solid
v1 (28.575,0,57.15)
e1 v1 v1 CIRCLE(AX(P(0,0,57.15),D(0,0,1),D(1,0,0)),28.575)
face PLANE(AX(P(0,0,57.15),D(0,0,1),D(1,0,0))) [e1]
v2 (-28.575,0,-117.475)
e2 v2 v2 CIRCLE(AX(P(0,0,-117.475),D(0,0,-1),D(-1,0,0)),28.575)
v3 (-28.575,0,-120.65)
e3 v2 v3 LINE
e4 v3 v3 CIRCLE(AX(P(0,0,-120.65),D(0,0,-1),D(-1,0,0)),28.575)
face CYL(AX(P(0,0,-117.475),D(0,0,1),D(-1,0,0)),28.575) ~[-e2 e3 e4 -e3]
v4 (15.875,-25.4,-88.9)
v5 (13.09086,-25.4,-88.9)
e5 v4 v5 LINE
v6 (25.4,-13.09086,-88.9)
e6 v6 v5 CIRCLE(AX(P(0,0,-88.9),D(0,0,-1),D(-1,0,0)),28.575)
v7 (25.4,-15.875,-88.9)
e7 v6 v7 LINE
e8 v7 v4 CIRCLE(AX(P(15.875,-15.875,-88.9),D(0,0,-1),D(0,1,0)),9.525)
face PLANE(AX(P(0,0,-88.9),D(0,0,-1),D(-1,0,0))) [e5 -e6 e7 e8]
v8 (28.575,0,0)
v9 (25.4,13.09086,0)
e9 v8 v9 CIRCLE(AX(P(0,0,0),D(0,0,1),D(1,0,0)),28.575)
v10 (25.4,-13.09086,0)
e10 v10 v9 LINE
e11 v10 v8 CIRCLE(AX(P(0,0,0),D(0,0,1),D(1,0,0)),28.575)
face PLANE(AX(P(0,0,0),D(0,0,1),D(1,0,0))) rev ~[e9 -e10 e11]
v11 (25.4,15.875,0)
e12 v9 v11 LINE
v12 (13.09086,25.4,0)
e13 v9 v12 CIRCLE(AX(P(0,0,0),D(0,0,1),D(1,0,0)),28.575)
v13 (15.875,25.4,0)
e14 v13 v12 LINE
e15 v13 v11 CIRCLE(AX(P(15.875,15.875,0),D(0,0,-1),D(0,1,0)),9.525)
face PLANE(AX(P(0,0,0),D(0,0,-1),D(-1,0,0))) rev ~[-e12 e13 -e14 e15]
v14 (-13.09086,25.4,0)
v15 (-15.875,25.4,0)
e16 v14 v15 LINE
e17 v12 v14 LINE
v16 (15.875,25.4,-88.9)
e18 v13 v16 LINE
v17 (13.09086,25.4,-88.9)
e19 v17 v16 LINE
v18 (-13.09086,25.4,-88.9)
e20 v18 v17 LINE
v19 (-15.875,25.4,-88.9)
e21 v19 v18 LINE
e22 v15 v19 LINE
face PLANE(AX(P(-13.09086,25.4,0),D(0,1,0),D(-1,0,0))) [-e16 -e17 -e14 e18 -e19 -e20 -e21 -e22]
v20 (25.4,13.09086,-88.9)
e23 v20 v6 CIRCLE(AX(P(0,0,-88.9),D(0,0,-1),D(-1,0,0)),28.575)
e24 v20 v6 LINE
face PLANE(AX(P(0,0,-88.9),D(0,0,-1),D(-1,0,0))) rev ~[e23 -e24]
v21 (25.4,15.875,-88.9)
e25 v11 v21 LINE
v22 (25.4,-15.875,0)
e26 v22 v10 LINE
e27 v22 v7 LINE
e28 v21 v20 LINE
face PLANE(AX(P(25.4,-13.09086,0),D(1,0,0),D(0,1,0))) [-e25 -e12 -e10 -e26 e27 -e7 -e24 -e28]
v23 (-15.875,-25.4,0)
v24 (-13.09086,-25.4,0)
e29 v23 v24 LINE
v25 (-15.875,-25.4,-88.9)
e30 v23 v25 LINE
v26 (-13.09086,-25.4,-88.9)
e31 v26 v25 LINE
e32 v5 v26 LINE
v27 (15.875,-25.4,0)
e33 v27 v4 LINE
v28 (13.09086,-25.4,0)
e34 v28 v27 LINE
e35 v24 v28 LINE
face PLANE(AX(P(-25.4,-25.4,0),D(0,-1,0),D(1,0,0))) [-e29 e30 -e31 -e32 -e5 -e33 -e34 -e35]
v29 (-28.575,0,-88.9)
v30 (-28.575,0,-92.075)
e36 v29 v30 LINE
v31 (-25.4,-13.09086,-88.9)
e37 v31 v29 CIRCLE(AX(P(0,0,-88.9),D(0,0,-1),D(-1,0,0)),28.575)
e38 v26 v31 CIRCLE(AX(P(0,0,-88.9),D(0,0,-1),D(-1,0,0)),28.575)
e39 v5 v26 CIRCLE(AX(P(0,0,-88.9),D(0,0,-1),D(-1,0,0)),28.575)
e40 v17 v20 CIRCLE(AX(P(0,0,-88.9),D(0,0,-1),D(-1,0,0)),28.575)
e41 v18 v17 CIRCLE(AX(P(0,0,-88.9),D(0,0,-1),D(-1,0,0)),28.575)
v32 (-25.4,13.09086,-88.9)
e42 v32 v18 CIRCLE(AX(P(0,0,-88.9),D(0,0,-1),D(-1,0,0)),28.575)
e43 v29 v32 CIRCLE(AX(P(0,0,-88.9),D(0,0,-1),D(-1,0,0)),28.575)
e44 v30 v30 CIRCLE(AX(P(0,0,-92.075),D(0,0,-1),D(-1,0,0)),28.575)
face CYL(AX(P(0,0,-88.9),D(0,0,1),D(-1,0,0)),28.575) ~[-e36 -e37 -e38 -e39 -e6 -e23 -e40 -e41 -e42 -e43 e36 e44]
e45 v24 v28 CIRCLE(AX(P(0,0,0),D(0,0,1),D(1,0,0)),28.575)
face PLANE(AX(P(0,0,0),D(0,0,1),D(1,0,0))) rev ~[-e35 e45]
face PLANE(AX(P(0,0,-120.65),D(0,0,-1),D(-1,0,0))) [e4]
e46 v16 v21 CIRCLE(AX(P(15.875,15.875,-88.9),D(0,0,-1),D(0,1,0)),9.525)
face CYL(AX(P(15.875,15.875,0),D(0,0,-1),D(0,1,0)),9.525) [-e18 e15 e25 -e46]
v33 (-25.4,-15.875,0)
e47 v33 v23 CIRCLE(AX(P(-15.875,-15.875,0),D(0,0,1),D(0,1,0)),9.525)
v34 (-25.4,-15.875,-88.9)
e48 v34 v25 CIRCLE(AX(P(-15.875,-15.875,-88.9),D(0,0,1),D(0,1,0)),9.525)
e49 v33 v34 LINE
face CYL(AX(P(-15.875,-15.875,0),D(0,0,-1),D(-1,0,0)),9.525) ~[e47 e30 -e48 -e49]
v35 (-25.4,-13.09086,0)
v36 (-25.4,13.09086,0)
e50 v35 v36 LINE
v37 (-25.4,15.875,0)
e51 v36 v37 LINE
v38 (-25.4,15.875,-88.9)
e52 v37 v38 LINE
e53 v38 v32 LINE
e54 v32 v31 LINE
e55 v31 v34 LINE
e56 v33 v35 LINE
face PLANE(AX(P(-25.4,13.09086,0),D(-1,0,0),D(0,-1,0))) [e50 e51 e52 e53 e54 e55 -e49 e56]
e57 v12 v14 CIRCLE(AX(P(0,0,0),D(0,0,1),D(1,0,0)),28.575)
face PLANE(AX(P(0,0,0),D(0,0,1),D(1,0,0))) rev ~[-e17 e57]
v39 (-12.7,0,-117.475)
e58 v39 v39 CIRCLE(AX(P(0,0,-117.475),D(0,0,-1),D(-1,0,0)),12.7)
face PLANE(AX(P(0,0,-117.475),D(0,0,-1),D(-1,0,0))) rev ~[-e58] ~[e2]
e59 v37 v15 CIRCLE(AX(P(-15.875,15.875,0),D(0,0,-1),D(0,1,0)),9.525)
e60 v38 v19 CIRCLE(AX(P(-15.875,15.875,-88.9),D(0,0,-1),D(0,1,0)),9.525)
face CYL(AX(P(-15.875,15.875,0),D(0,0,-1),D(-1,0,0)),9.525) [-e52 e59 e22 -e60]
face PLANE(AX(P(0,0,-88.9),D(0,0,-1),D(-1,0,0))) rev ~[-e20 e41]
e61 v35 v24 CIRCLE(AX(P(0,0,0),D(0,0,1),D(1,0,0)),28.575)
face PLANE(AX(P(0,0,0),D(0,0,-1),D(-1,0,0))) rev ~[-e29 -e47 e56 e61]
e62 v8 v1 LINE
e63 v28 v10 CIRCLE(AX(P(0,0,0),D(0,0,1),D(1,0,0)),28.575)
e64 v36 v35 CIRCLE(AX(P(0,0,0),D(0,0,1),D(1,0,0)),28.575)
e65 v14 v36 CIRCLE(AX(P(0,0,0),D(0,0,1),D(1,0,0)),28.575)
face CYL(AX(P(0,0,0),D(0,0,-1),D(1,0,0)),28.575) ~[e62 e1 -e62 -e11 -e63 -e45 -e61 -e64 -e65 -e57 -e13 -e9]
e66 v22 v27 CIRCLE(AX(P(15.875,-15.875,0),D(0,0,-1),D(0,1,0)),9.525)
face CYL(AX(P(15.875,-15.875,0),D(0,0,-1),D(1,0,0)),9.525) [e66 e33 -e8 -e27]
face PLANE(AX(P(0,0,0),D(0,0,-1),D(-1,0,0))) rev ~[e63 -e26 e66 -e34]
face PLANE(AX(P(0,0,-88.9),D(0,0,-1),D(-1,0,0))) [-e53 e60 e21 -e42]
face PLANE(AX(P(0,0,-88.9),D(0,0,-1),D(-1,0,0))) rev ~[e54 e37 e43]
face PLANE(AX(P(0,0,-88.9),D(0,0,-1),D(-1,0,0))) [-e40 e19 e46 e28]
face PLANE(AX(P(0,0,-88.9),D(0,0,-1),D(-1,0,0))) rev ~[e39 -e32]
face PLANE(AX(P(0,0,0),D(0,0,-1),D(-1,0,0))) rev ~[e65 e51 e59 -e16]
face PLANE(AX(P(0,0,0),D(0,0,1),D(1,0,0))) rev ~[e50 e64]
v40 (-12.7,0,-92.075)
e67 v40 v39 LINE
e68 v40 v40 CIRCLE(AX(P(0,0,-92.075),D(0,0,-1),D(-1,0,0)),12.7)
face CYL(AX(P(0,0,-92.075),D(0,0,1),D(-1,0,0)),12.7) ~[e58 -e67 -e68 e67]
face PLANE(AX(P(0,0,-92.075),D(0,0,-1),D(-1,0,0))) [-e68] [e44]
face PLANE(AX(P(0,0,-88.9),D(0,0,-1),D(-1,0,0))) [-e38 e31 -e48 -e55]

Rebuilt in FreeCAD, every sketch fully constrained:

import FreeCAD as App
import Part
import Sketcher
from FreeCAD import Vector
Q = App.Units.Quantity


def edges_at(feature, points):
    """Names of the edges that pass closest to the given points."""
    edges = feature.Shape.Edges
    near = lambda p: min(range(len(edges)), key=lambda i: edges[i].distToShape(Part.Vertex(*p))[0])
    return sorted({f"Edge{near(p) + 1}" for p in points})


def add_polygon(sketch, points):
    """Adds a closed chain of lines whose ends are joined by coincident constraints."""
    first, n = sketch.GeometryCount, len(points)
    for a, b in zip(points, points[1:] + points[:1]):
        sketch.addGeometry(Part.LineSegment(App.Vector(*a, 0), App.Vector(*b, 0)), False)
    for i in range(n):
        sketch.addConstraint(Sketcher.Constraint("Coincident", first + i, 2, first + (i + 1) % n, 1))

doc = App.newDocument("Part")
body = doc.addObject("PartDesign::Body", "Body")

# Sketch on XY plane
sketch1 = body.newObject("Sketcher::SketchObject", "Sketch")
sketch1.AttachmentSupport = (doc.getObject("XY_Plane"), [""])
sketch1.MapMode = "FlatFace"
sketch1.addGeometry(Part.Circle(Vector(0, 0, 0), Vector(0, 0, 1), 28.575), False)
sketch1.addConstraint([
    Sketcher.Constraint("Coincident", 0, 3, -1, 1),
    Sketcher.Constraint("Diameter", 0, Q("2.25 in")),
])
pad1 = body.newObject("PartDesign::Pad", "Pad")
pad1.Profile = sketch1
pad1.Length = Q("2.25 in")

# Sketch on XY plane
sketch2 = body.newObject("Sketcher::SketchObject", "Sketch001")
sketch2.AttachmentSupport = (doc.getObject("XY_Plane"), [""])
sketch2.MapMode = "FlatFace"
add_polygon(sketch2, [(-25.4, 25.4), (25.4, 25.4), (25.4, -25.4), (-25.4, -25.4)])  # lines 0-3
sketch2.addConstraint([
    Sketcher.Constraint("Horizontal", 0),
    Sketcher.Constraint("Vertical", 1),
    Sketcher.Constraint("Horizontal", 2),
    Sketcher.Constraint("Vertical", 3),
    Sketcher.Constraint("Symmetric", 0, 2, 2, 2, -1, 1),
    Sketcher.Constraint("Equal", 2, 1),
    Sketcher.Constraint("DistanceX", -1, 1, 0, 2, Q("1 in")),
])
pad2 = body.newObject("PartDesign::Pad", "Pad001")
pad2.Profile = sketch2
pad2.Length = Q("3.5 in")
pad2.Reversed = True

# Sketch on XY plane
sketch3 = body.newObject("Sketcher::SketchObject", "Sketch002")
sketch3.AttachmentSupport = (doc.getObject("XY_Plane"), [""])
sketch3.MapMode = "FlatFace"
sketch3.AttachmentOffset = App.Placement(Vector(0, 0, -3.5 * 25.4), App.Rotation())
sketch3.addGeometry(Part.Circle(Vector(0, 0, 0), Vector(0, 0, 1), 28.575), False)
sketch3.addConstraint([
    Sketcher.Constraint("Coincident", 0, 3, -1, 1),
    Sketcher.Constraint("Diameter", 0, Q("2.25 in")),
])
pad3 = body.newObject("PartDesign::Pad", "Pad002")
pad3.Profile = sketch3
pad3.Length = Q("0.125 in")
pad3.Reversed = True

# Sketch on XY plane
sketch4 = body.newObject("Sketcher::SketchObject", "Sketch003")
sketch4.AttachmentSupport = (doc.getObject("XY_Plane"), [""])
sketch4.MapMode = "FlatFace"
sketch4.AttachmentOffset = App.Placement(Vector(0, 0, -3.625 * 25.4), App.Rotation())
sketch4.addGeometry(Part.Circle(Vector(0, 0, 0), Vector(0, 0, 1), 12.7), False)
sketch4.addConstraint([
    Sketcher.Constraint("Coincident", 0, 3, -1, 1),
    Sketcher.Constraint("Diameter", 0, Q("1 in")),
])
pad4 = body.newObject("PartDesign::Pad", "Pad003")
pad4.Profile = sketch4
pad4.Length = Q("1 in")
pad4.Reversed = True

# Sketch on XY plane
sketch5 = body.newObject("Sketcher::SketchObject", "Sketch004")
sketch5.AttachmentSupport = (doc.getObject("XY_Plane"), [""])
sketch5.MapMode = "FlatFace"
sketch5.AttachmentOffset = App.Placement(Vector(0, 0, -4.625 * 25.4), App.Rotation())
sketch5.addGeometry(Part.Circle(Vector(0, 0, 0), Vector(0, 0, 1), 28.575), False)
sketch5.addConstraint([
    Sketcher.Constraint("Coincident", 0, 3, -1, 1),
    Sketcher.Constraint("Diameter", 0, Q("2.25 in")),
])
pad5 = body.newObject("PartDesign::Pad", "Pad004")
pad5.Profile = sketch5
pad5.Length = Q("0.125 in")
pad5.Reversed = True
doc.recompute()

fillet = body.newObject("PartDesign::Fillet", "Fillet")
fillet.Base = (pad5, edges_at(pad5, [
    (25.4, 25.4, -44.45),
    (-25.4, 25.4, -44.45),
    (25.4, -25.4, -44.45),
    (-25.4, -25.4, -44.45),
]))
fillet.Radius = Q("0.375 in")

doc.recompute()
